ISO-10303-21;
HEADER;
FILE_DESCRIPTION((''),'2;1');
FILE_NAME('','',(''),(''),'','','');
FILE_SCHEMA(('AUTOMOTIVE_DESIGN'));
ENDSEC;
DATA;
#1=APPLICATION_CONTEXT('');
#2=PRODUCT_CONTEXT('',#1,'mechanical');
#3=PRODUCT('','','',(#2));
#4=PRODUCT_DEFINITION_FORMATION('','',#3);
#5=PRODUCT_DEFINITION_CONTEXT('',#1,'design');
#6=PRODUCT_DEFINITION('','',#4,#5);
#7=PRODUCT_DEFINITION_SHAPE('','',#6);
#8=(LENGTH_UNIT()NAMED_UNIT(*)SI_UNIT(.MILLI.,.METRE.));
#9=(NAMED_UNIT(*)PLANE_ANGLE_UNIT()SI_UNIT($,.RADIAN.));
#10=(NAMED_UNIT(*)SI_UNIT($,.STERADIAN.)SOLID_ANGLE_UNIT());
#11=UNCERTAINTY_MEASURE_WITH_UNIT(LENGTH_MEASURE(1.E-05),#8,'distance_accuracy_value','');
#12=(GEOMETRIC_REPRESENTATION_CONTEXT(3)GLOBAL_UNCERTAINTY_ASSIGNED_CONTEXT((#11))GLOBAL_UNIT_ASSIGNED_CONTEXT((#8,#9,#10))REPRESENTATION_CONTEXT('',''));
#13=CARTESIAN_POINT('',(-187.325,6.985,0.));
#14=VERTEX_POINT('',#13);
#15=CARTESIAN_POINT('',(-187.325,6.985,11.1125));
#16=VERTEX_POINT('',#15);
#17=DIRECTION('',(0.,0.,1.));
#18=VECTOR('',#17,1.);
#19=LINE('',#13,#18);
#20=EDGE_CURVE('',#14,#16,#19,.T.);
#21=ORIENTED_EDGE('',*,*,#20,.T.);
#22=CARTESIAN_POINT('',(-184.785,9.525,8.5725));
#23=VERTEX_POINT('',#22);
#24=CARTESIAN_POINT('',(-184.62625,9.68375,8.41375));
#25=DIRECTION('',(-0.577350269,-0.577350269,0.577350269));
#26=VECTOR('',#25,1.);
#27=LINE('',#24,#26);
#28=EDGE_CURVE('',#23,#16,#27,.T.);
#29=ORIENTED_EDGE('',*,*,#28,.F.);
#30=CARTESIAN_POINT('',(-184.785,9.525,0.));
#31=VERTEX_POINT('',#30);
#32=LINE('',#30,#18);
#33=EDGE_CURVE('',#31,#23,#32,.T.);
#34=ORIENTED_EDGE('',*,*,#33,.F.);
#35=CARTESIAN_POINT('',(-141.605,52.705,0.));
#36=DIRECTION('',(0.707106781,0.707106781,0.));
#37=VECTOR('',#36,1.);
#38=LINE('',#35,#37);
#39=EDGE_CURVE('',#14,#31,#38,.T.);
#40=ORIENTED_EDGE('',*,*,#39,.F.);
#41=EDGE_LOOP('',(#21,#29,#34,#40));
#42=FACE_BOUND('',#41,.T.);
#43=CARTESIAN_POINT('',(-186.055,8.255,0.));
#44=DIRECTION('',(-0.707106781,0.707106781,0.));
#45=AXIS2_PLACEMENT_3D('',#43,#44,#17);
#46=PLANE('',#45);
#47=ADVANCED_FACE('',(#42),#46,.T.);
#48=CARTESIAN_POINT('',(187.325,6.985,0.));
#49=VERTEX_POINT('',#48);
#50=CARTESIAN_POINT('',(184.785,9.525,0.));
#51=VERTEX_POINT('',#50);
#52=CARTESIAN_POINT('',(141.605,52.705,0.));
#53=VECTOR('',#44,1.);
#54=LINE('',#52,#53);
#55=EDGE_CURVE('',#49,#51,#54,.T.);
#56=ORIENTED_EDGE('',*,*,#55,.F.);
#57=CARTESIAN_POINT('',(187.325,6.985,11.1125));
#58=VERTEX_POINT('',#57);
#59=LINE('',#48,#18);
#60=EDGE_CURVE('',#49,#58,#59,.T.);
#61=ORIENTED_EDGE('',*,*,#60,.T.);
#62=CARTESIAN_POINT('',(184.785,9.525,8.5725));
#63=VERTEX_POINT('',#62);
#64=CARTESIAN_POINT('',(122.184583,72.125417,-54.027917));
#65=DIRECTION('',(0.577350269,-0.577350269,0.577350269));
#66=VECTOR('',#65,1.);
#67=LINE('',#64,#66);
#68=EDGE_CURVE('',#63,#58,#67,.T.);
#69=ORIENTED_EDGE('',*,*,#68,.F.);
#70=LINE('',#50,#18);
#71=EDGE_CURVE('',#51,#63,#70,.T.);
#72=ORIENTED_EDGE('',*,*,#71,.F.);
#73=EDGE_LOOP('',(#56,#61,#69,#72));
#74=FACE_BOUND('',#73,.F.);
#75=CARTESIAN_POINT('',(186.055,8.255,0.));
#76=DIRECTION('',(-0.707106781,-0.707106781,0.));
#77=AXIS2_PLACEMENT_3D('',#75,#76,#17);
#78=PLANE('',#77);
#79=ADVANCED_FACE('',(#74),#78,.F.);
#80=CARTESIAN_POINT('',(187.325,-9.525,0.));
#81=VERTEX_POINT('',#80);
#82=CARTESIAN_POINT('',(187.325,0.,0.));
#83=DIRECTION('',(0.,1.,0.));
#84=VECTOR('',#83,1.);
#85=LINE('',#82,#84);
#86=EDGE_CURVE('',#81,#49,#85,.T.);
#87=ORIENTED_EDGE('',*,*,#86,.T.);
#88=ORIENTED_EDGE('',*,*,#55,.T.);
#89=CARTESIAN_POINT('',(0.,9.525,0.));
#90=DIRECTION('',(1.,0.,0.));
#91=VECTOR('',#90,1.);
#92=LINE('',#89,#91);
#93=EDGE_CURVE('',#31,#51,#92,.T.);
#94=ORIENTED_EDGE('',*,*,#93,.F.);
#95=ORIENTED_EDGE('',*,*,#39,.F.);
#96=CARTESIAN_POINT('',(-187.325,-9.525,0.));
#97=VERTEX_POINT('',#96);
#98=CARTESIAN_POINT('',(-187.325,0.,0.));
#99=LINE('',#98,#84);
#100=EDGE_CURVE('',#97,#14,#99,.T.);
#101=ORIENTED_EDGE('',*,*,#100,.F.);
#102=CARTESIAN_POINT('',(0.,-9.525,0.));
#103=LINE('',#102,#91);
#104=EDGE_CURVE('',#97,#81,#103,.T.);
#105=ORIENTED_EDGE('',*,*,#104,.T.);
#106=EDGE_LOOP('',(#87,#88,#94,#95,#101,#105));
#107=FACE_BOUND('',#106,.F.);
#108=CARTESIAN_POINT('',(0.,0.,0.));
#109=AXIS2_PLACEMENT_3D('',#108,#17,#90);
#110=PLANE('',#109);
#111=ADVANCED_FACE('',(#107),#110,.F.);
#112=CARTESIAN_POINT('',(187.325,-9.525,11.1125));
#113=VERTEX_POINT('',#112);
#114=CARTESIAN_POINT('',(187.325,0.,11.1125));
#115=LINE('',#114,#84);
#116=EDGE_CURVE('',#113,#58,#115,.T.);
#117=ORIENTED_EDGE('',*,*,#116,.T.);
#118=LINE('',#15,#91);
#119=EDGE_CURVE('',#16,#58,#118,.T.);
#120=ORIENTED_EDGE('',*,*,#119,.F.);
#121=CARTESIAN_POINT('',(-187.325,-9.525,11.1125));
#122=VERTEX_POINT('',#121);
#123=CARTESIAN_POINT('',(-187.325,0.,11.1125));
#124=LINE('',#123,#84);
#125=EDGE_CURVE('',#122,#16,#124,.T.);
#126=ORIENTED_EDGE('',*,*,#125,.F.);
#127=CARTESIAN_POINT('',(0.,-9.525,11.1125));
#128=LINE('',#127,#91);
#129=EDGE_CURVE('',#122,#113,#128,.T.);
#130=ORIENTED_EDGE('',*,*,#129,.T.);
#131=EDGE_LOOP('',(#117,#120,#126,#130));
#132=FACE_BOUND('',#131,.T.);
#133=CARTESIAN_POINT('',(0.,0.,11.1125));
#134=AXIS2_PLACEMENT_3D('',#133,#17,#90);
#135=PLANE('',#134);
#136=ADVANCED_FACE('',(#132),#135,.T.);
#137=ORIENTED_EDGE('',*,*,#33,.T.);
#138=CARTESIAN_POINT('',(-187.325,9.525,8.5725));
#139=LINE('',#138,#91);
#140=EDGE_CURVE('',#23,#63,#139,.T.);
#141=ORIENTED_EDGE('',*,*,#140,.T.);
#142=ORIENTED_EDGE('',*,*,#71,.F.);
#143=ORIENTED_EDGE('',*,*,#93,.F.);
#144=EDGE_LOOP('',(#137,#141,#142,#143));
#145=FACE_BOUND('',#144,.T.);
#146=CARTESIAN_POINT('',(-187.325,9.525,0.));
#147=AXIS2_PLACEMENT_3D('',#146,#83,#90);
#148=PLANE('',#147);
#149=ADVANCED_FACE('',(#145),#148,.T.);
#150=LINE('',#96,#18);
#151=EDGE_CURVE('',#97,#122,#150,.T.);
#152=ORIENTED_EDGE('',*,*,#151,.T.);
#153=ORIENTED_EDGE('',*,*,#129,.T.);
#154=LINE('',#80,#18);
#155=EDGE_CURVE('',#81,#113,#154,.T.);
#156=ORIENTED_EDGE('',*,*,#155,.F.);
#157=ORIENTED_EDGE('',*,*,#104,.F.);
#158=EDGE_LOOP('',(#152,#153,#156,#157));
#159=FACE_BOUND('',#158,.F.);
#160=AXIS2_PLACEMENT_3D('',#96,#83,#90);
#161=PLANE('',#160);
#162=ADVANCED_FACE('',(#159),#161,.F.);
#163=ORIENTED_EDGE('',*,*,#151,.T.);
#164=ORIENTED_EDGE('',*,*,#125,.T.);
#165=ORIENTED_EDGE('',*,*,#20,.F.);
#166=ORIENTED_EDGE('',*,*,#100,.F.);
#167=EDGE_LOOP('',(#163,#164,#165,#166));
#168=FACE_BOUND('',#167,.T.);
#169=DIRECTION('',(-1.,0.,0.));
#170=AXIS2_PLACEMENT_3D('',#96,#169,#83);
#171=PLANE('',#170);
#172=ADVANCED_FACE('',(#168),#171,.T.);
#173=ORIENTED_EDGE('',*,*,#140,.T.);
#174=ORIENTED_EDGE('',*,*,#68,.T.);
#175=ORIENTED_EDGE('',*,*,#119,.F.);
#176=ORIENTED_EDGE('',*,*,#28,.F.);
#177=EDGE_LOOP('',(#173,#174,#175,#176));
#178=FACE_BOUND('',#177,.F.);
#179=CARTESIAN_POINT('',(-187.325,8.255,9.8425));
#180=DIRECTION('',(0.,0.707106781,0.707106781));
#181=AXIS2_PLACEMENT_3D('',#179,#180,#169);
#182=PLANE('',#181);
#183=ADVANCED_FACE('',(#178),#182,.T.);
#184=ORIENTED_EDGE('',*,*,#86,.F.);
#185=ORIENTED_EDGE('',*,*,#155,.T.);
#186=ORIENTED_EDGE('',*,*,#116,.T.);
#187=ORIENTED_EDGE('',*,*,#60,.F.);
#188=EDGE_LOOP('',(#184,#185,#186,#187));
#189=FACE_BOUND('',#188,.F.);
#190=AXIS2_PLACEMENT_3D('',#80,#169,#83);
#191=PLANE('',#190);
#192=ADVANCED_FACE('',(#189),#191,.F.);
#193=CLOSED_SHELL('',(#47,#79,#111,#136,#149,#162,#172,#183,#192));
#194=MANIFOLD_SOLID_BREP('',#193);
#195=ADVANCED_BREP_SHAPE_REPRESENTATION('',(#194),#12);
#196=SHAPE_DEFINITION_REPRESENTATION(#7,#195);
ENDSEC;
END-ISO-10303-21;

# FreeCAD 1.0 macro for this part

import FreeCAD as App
import Part
import Sketcher
Q = App.Units.Quantity


def edges_at(feature, points):
    """Names of the edges that pass closest to the given points."""
    edges = feature.Shape.Edges
    near = lambda p: min(range(len(edges)), key=lambda i: edges[i].distToShape(Part.Vertex(*p))[0])
    return sorted({f"Edge{near(p) + 1}" for p in points})

doc = App.newDocument("Part")
params = doc.addObject("Spreadsheet::Sheet", "Params")
for row, (alias, value) in enumerate([
    ("sketch1_width", "14.75 in"),
    ("sketch1_height", "0.75 in"),
    ("pad1_length", "0.4375 in"),
    ("chamfer_size", "0.1 in"),
], start=1):
    params.set(f"A{row}", alias)
    params.set(f"B{row}", "=" + value)
    params.setAlias(f"B{row}", alias)

body = doc.addObject("PartDesign::Body", "Body")

# Sketch on XY plane
sketch1 = doc.addObject("Sketcher::SketchObject", "Sketch")
body.addObject(sketch1)
sketch1.AttachmentSupport = (doc.XY_Plane, [""])
sketch1.MapMode = "FlatFace"
sketch1.addGeometry(Part.LineSegment(App.Vector(-187, 10, 0), App.Vector(-187, -10, 0)), False)
sketch1.addGeometry(Part.LineSegment(App.Vector(-187, -10, 0), App.Vector(187, -10, 0)), False)
sketch1.addGeometry(Part.LineSegment(App.Vector(187, -10, 0), App.Vector(187, 10, 0)), False)
sketch1.addGeometry(Part.LineSegment(App.Vector(187, 10, 0), App.Vector(-187, 10, 0)), False)
sketch1.addConstraint(Sketcher.Constraint("Coincident", 0, 2, 1, 1))
sketch1.addConstraint(Sketcher.Constraint("Coincident", 1, 2, 2, 1))
sketch1.addConstraint(Sketcher.Constraint("Coincident", 2, 2, 3, 1))
sketch1.addConstraint(Sketcher.Constraint("Coincident", 3, 2, 0, 1))
sketch1.addConstraint(Sketcher.Constraint("Vertical", 0))
sketch1.addConstraint(Sketcher.Constraint("Horizontal", 1))
sketch1.addConstraint(Sketcher.Constraint("Vertical", 2))
sketch1.addConstraint(Sketcher.Constraint("Horizontal", 3))
sketch1.addConstraint(Sketcher.Constraint("Symmetric", 0, 2, 2, 2, -1, 1))
sketch1.addConstraint(Sketcher.Constraint("DistanceX", 1, 1, 1, 2, Q("14.75 in")))
sketch1.addConstraint(Sketcher.Constraint("DistanceY", 0, 2, 0, 1, Q("0.75 in")))
sketch1.setExpression("Constraints[9]", "Params.sketch1_width")
sketch1.setExpression("Constraints[10]", "Params.sketch1_height")
pad1 = doc.addObject("PartDesign::Pad", "Pad")
body.addObject(pad1)
pad1.Profile = sketch1
pad1.setExpression("Length", "Params.pad1_length")
doc.recompute()

chamfer = doc.addObject("PartDesign::Chamfer", "Chamfer")
body.addObject(chamfer)
chamfer.Base = (pad1, edges_at(pad1, [(0, 9.525, 11.113), (187.325, 9.525, 5.556), (-187.325, 9.525, 5.556)]))
chamfer.setExpression("Size", "Params.chamfer_size")

doc.recompute()
